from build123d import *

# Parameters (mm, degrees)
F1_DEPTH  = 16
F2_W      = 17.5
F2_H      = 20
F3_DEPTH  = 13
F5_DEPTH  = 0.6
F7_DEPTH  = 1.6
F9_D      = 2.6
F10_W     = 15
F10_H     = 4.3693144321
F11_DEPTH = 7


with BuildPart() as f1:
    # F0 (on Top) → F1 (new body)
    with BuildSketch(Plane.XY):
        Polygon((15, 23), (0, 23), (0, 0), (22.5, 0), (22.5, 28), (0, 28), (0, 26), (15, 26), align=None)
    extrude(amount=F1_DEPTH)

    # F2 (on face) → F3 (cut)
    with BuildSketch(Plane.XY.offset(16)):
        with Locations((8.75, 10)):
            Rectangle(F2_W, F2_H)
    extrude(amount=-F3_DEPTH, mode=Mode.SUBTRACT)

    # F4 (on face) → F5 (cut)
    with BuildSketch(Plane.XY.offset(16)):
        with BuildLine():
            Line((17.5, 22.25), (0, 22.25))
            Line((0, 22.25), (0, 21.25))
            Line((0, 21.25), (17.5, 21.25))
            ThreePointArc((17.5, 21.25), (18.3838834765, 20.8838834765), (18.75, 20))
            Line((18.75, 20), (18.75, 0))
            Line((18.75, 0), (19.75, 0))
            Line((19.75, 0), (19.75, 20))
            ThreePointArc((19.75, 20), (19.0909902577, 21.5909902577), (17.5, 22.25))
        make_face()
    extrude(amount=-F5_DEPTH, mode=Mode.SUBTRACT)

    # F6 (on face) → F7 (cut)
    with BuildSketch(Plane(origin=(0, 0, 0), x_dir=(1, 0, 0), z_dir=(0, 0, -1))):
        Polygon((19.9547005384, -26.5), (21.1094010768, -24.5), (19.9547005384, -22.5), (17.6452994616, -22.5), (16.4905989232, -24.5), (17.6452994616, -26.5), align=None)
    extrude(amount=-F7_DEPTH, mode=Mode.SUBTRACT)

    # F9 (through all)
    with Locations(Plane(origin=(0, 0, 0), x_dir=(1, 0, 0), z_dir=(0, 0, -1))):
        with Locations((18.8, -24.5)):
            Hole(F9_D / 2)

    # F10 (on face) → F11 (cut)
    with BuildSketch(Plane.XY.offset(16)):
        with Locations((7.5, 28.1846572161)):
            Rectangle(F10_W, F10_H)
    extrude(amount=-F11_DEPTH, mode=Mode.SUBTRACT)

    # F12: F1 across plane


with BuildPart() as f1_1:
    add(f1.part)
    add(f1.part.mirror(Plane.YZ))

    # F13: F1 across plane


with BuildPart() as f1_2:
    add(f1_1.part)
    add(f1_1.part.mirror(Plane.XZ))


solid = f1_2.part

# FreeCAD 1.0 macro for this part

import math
import FreeCAD as App
import Part
import Sketcher
Q = App.Units.Quantity

doc = App.newDocument("Part")
params = doc.addObject("Spreadsheet::Sheet", "Params")
for row, (alias, value) in enumerate([
    ("sketch1_width", "15 mm"),
    ("sketch1_height", "23 mm"),
    ("sketch1_height2", "28 mm"),
    ("sketch1_height3", "2 mm"),
    ("sketch1_width2", "22.5 mm"),
    ("pad1_length", "16 mm"),
    ("sketch2_height", "20 mm"),
    ("sketch2_width", "17.5 mm"),
    ("pocket1_length", "13 mm"),
    ("sketch3_width", "1 mm"),
    ("sketch3_height", "20 mm"),
    ("sketch3_radius", "1.25 mm"),
    ("sketch3_width2", "17.5 mm"),
    ("pocket2_length", "0.6 mm"),
    ("pocket3_length", "1.6 mm"),
    ("sketch5_diameter", "2.6 mm"),
    ("hole_diameter", "2.6 mm"),
    ("sketch6_width", "15 mm"),
    ("pocket4_length", "7 mm"),
], start=1):
    params.set(f"A{row}", alias)
    params.set(f"B{row}", "=" + value)
    params.setAlias(f"B{row}", alias)

body = doc.addObject("PartDesign::Body", "Body")

# Sketch on XY plane
sketch1 = body.newObject("Sketcher::SketchObject", "Sketch")
sketch1.AttachmentSupport = (doc.getObject("XY_Plane"), [""])
sketch1.MapMode = "FlatFace"
sketch1.addGeometry([
    Part.LineSegment(App.Vector(15, 23, 0), App.Vector(0, 23, 0)),  # 0
    Part.LineSegment(App.Vector(0, 23, 0), App.Vector(0, 0, 0)),  # 1
    Part.LineSegment(App.Vector(0, 0, 0), App.Vector(22.5, 0, 0)),  # 2
    Part.LineSegment(App.Vector(22.5, 0, 0), App.Vector(22.5, 28, 0)),  # 3
    Part.LineSegment(App.Vector(22.5, 28, 0), App.Vector(0, 28, 0)),  # 4
    Part.LineSegment(App.Vector(0, 28, 0), App.Vector(0, 26, 0)),  # 5
    Part.LineSegment(App.Vector(0, 26, 0), App.Vector(15, 26, 0)),  # 6
    Part.LineSegment(App.Vector(15, 26, 0), App.Vector(15, 23, 0)),  # 7
], False)
sketch1.addConstraint([
    Sketcher.Constraint("Coincident", 0, 2, 1, 1),
    Sketcher.Constraint("Coincident", 1, 2, 2, 1),
    Sketcher.Constraint("Coincident", 2, 2, 3, 1),
    Sketcher.Constraint("Coincident", 3, 2, 4, 1),
    Sketcher.Constraint("Coincident", 4, 2, 5, 1),
    Sketcher.Constraint("Coincident", 5, 2, 6, 1),
    Sketcher.Constraint("Coincident", 6, 2, 7, 1),
    Sketcher.Constraint("Coincident", 7, 2, 0, 1),
    Sketcher.Constraint("Horizontal", 0),
    Sketcher.Constraint("Vertical", 1),
    Sketcher.Constraint("Horizontal", 2),
    Sketcher.Constraint("Vertical", 3),
    Sketcher.Constraint("Horizontal", 4),
    Sketcher.Constraint("Vertical", 5),
    Sketcher.Constraint("Horizontal", 6),
    Sketcher.Constraint("Vertical", 7),
    Sketcher.Constraint("Coincident", 1, 2, -1, 1),
    Sketcher.Constraint("PointOnObject", 4, 2, -2),
    Sketcher.Constraint("DistanceX", 0, 2, 0, 1, 15.0),
    Sketcher.Constraint("DistanceY", 1, 2, 1, 1, 23.0),
    Sketcher.Constraint("DistanceY", 3, 1, 3, 2, 28.0),
    Sketcher.Constraint("DistanceY", 5, 2, 5, 1, 2.0),
    Sketcher.Constraint("DistanceX", 2, 1, 2, 2, 22.5),
])
sketch1.setExpression("Constraints[18]", "Params.sketch1_width")
sketch1.setExpression("Constraints[19]", "Params.sketch1_height")
sketch1.setExpression("Constraints[20]", "Params.sketch1_height2")
sketch1.setExpression("Constraints[21]", "Params.sketch1_height3")
sketch1.setExpression("Constraints[22]", "Params.sketch1_width2")
pad1 = body.newObject("PartDesign::Pad", "Pad")
pad1.Profile = sketch1
pad1.setExpression("Length", "Params.pad1_length")

# Sketch on XY plane
sketch2 = body.newObject("Sketcher::SketchObject", "Sketch001")
sketch2.AttachmentSupport = (doc.getObject("XY_Plane"), [""])
sketch2.MapMode = "FlatFace"
sketch2.AttachmentOffset = App.Placement(App.Vector(0, 0, 16), App.Rotation())
sketch2.addGeometry([
    Part.LineSegment(App.Vector(0, 20, 0), App.Vector(0, 0, 0)),
    Part.LineSegment(App.Vector(0, 0, 0), App.Vector(18, 0, 0)),
    Part.LineSegment(App.Vector(18, 0, 0), App.Vector(18, 20, 0)),
    Part.LineSegment(App.Vector(18, 20, 0), App.Vector(0, 20, 0)),
], False)
sketch2.addConstraint([
    Sketcher.Constraint("Coincident", 0, 2, 1, 1),
    Sketcher.Constraint("Coincident", 1, 2, 2, 1),
    Sketcher.Constraint("Coincident", 2, 2, 3, 1),
    Sketcher.Constraint("Coincident", 3, 2, 0, 1),
    Sketcher.Constraint("Vertical", 0),
    Sketcher.Constraint("Horizontal", 1),
    Sketcher.Constraint("Vertical", 2),
    Sketcher.Constraint("Horizontal", 3),
    Sketcher.Constraint("Coincident", 0, 2, -1, 1),
    Sketcher.Constraint("DistanceY", 0, 2, 0, 1, 20.0),
    Sketcher.Constraint("DistanceX", 1, 1, 1, 2, 17.5),
])
sketch2.setExpression("Constraints[9]", "Params.sketch2_height")
sketch2.setExpression("Constraints[10]", "Params.sketch2_width")
pocket1 = body.newObject("PartDesign::Pocket", "Pocket")
pocket1.Profile = sketch2
pocket1.setExpression("Length", "Params.pocket1_length")

# Sketch on XY plane
sketch3 = body.newObject("Sketcher::SketchObject", "Sketch002")
sketch3.AttachmentSupport = (doc.getObject("XY_Plane"), [""])
sketch3.MapMode = "FlatFace"
sketch3.AttachmentOffset = App.Placement(App.Vector(0, 0, 16), App.Rotation())
sketch3.addGeometry([
    Part.LineSegment(App.Vector(17.5, 22.2, 0), App.Vector(0, 22.2, 0)),  # 0
    Part.LineSegment(App.Vector(0, 22.2, 0), App.Vector(0, 21.2, 0)),  # 1
    Part.LineSegment(App.Vector(0, 21.2, 0), App.Vector(17.5, 21.2, 0)),  # 2
    Part.ArcOfCircle(Part.Circle(App.Vector(17.5, 20, 0), App.Vector(0, 0, 1), 1.2), math.radians(0), math.radians(90)),  # 3
    Part.LineSegment(App.Vector(18.8, 20, 0), App.Vector(18.8, 0, 0)),  # 4
    Part.LineSegment(App.Vector(18.8, 0, 0), App.Vector(19.8, 0, 0)),  # 5
    Part.LineSegment(App.Vector(19.8, 0, 0), App.Vector(19.8, 20, 0)),  # 6
    Part.ArcOfCircle(Part.Circle(App.Vector(17.5, 20, 0), App.Vector(0, 0, 1), 2.2), math.radians(0), math.radians(90)),  # 7
], False)
sketch3.addConstraint([
    Sketcher.Constraint("Coincident", 0, 2, 1, 1),
    Sketcher.Constraint("Coincident", 1, 2, 2, 1),
    Sketcher.Constraint("Tangent", 2, 2, 3, 2),
    Sketcher.Constraint("Tangent", 3, 1, 4, 1),
    Sketcher.Constraint("Coincident", 4, 2, 5, 1),
    Sketcher.Constraint("Coincident", 5, 2, 6, 1),
    Sketcher.Constraint("Tangent", 6, 2, 7, 1),
    Sketcher.Constraint("Tangent", 7, 2, 0, 1),
    Sketcher.Constraint("Horizontal", 0),
    Sketcher.Constraint("Vertical", 1),
    Sketcher.Constraint("Horizontal", 2),
    Sketcher.Constraint("Vertical", 4),
    Sketcher.Constraint("Horizontal", 5),
    Sketcher.Constraint("Vertical", 6),
    Sketcher.Constraint("Coincident", 7, 3, 3, 3),
    Sketcher.Constraint("PointOnObject", 0, 2, -2),
    Sketcher.Constraint("PointOnObject", 4, 2, -1),
    Sketcher.Constraint("DistanceX", 5, 1, 5, 2, 1.0),
    Sketcher.Constraint("DistanceY", 4, 2, 4, 1, 20.0),
    Sketcher.Constraint("Radius", 3, 1.25),
    Sketcher.Constraint("DistanceX", 0, 2, 0, 1, 17.5),
])
sketch3.setExpression("Constraints[17]", "Params.sketch3_width")
sketch3.setExpression("Constraints[18]", "Params.sketch3_height")
sketch3.setExpression("Constraints[19]", "Params.sketch3_radius")
sketch3.setExpression("Constraints[20]", "Params.sketch3_width2")
pocket2 = body.newObject("PartDesign::Pocket", "Pocket001")
pocket2.Profile = sketch3
pocket2.setExpression("Length", "Params.pocket2_length")

# Sketch on XY plane
sketch4 = body.newObject("Sketcher::SketchObject", "Sketch003")
sketch4.AttachmentSupport = (doc.getObject("XY_Plane"), [""])
sketch4.MapMode = "FlatFace"
sketch4.addGeometry([
    Part.LineSegment(App.Vector(20, 26.5, 0), App.Vector(21.1, 24.5, 0)),  # 0
    Part.LineSegment(App.Vector(21.1, 24.5, 0), App.Vector(20, 22.5, 0)),  # 1
    Part.LineSegment(App.Vector(20, 22.5, 0), App.Vector(17.6, 22.5, 0)),  # 2
    Part.LineSegment(App.Vector(17.6, 22.5, 0), App.Vector(16.5, 24.5, 0)),  # 3
    Part.LineSegment(App.Vector(16.5, 24.5, 0), App.Vector(17.6, 26.5, 0)),  # 4
    Part.LineSegment(App.Vector(17.6, 26.5, 0), App.Vector(20, 26.5, 0)),  # 5
], False)
sketch4.addConstraint([
    Sketcher.Constraint("Coincident", 0, 2, 1, 1),
    Sketcher.Constraint("Coincident", 1, 2, 2, 1),
    Sketcher.Constraint("Coincident", 2, 2, 3, 1),
    Sketcher.Constraint("Coincident", 3, 2, 4, 1),
    Sketcher.Constraint("Coincident", 4, 2, 5, 1),
    Sketcher.Constraint("Coincident", 5, 2, 0, 1),
    Sketcher.Constraint("Horizontal", 2),
    Sketcher.Constraint("Horizontal", 5),
    Sketcher.Constraint("Parallel", 0, 3),
    Sketcher.Constraint("Parallel", 1, 4),
    Sketcher.Constraint("Horizontal", 0, 2, 3, 2),
    Sketcher.Constraint("Vertical", 2, 2, 4, 2),
    Sketcher.Constraint("Vertical", 1, 2, 5, 2),
    Sketcher.Constraint("Angle", 0, Q("-60 deg")),
    Sketcher.Constraint("DistanceY", 1, 2, 0, 2, 2.0),
    Sketcher.Constraint("DistanceY", -1, 1, 0, 2, 24.5),
    Sketcher.Constraint("DistanceX", 2, 2, 2, 1, 2.309401),
    Sketcher.Constraint("DistanceX", -1, 1, 0, 2, 21.109401),
])
pocket3 = body.newObject("PartDesign::Pocket", "Pocket002")
pocket3.Profile = sketch4
pocket3.setExpression("Length", "Params.pocket3_length")
pocket3.Reversed = True

# Sketch on XY plane
sketch5 = body.newObject("Sketcher::SketchObject", "Sketch004")
sketch5.AttachmentSupport = (doc.getObject("XY_Plane"), [""])
sketch5.MapMode = "FlatFace"
sketch5.addGeometry(Part.Circle(App.Vector(18.8, 24.5, 0), App.Vector(0, 0, 1), 1.3), False)
sketch5.addConstraint([
    Sketcher.Constraint("Diameter", 0, 2.6),
    Sketcher.Constraint("DistanceX", -1, 1, 0, 3, 18.8),
    Sketcher.Constraint("DistanceY", -1, 1, 0, 3, 24.5),
])
sketch5.setExpression("Constraints[0]", "Params.sketch5_diameter")
doc.recompute()
hole = body.newObject("PartDesign::Hole", "Hole")
hole.Profile = sketch5
hole.ThreadType = "None"
hole.setExpression("Diameter", "Params.hole_diameter")
hole.DepthType = "ThroughAll"
hole.Reversed = True

# Sketch on XY plane
sketch6 = body.newObject("Sketcher::SketchObject", "Sketch005")
sketch6.AttachmentSupport = (doc.getObject("XY_Plane"), [""])
sketch6.MapMode = "FlatFace"
sketch6.AttachmentOffset = App.Placement(App.Vector(0, 0, 16), App.Rotation())
sketch6.addGeometry([
    Part.LineSegment(App.Vector(0, 30.4, 0), App.Vector(0, 26, 0)),
    Part.LineSegment(App.Vector(0, 26, 0), App.Vector(15, 26, 0)),
    Part.LineSegment(App.Vector(15, 26, 0), App.Vector(15, 30.4, 0)),
    Part.LineSegment(App.Vector(15, 30.4, 0), App.Vector(0, 30.4, 0)),
], False)
sketch6.addConstraint([
    Sketcher.Constraint("Coincident", 0, 2, 1, 1),
    Sketcher.Constraint("Coincident", 1, 2, 2, 1),
    Sketcher.Constraint("Coincident", 2, 2, 3, 1),
    Sketcher.Constraint("Coincident", 3, 2, 0, 1),
    Sketcher.Constraint("Vertical", 0),
    Sketcher.Constraint("Horizontal", 1),
    Sketcher.Constraint("Vertical", 2),
    Sketcher.Constraint("Horizontal", 3),
    Sketcher.Constraint("PointOnObject", 0, 2, -2),
    Sketcher.Constraint("DistanceX", 1, 1, 1, 2, 15.0),
    Sketcher.Constraint("DistanceY", -1, 1, 0, 2, 26.0),
    Sketcher.Constraint("DistanceY", 0, 2, 0, 1, 4.369314),
])
sketch6.setExpression("Constraints[9]", "Params.sketch6_width")
pocket4 = body.newObject("PartDesign::Pocket", "Pocket003")
pocket4.Profile = sketch6
pocket4.setExpression("Length", "Params.pocket4_length")
body2 = doc.addObject("PartDesign::Body", "Body001")
doc.recompute()

body2.BaseFeature = body
doc.recompute()

mirroring = doc.addObject("Part::Mirroring", "Mirroring")
mirroring.Source = body
mirroring.Base = App.Vector(0, 0, 0)
mirroring.Normal = App.Vector(1, 0, 0)
body3 = doc.addObject("PartDesign::Body", "Body002")
body3.BaseFeature = mirroring
boolean = body2.newObject("PartDesign::Boolean", "Boolean")
boolean.Type = "Fuse"
boolean.addObjects([body3])
doc.recompute()
body4 = doc.addObject("PartDesign::Body", "Body003")
doc.recompute()

body4.BaseFeature = body2
doc.recompute()

mirroring2 = doc.addObject("Part::Mirroring", "Mirroring001")
mirroring2.Source = body2
mirroring2.Base = App.Vector(0, 0, 0)
mirroring2.Normal = App.Vector(0, -1, 0)
body5 = doc.addObject("PartDesign::Body", "Body004")
body5.BaseFeature = mirroring2
boolean2 = body4.newObject("PartDesign::Boolean", "Boolean001")
boolean2.Type = "Fuse"
boolean2.addObjects([body5])
doc.recompute()
mirroring.Visibility = False
mirroring2.Visibility = False

doc.recompute()
